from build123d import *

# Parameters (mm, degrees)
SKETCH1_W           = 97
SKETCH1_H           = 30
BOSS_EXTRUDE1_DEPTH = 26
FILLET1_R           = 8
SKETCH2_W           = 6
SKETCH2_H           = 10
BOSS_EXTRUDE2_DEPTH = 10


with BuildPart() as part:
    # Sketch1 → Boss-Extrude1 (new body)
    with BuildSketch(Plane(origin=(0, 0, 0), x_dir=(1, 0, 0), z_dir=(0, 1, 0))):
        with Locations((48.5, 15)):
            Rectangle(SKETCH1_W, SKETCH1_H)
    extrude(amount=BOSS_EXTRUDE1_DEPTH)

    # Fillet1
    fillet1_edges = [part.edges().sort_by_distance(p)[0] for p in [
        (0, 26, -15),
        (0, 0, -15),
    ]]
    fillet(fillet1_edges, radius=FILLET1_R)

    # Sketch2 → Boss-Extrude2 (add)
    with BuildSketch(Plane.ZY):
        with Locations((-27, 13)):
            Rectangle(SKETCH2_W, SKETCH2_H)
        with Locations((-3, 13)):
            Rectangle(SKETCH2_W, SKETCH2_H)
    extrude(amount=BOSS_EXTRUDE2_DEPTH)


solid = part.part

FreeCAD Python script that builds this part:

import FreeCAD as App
import Part
import Sketcher
Q = App.Units.Quantity


def edges_at(feature, points):
    """Names of the edges that pass closest to the given points."""
    edges = feature.Shape.Edges
    near = lambda p: min(range(len(edges)), key=lambda i: edges[i].distToShape(Part.Vertex(*p))[0])
    return sorted({f"Edge{near(p) + 1}" for p in points})

doc = App.newDocument("Part")
body = doc.addObject("PartDesign::Body", "Body")

# Sketch on XZ plane
sketch1 = body.newObject("Sketcher::SketchObject", "Sketch")
sketch1.AttachmentSupport = (doc.getObject("XZ_Plane"), [""])
sketch1.MapMode = "FlatFace"
sketch1.addGeometry(Part.LineSegment(App.Vector(0, -30, 0), App.Vector(0, 0, 0)), False)
sketch1.addGeometry(Part.LineSegment(App.Vector(0, 0, 0), App.Vector(97, 0, 0)), False)
sketch1.addGeometry(Part.LineSegment(App.Vector(97, 0, 0), App.Vector(97, -30, 0)), False)
sketch1.addGeometry(Part.LineSegment(App.Vector(97, -30, 0), App.Vector(0, -30, 0)), False)
sketch1.addConstraint(Sketcher.Constraint("Coincident", 0, 2, 1, 1))
sketch1.addConstraint(Sketcher.Constraint("Coincident", 1, 2, 2, 1))
sketch1.addConstraint(Sketcher.Constraint("Coincident", 2, 2, 3, 1))
sketch1.addConstraint(Sketcher.Constraint("Coincident", 3, 2, 0, 1))
sketch1.addConstraint(Sketcher.Constraint("Vertical", 0))
sketch1.addConstraint(Sketcher.Constraint("Horizontal", 1))
sketch1.addConstraint(Sketcher.Constraint("Vertical", 2))
sketch1.addConstraint(Sketcher.Constraint("Horizontal", 3))
sketch1.addConstraint(Sketcher.Constraint("Coincident", 0, 2, -1, 1))
sketch1.addConstraint(Sketcher.Constraint("DistanceX", 1, 1, 1, 2, Q("97 mm")))
sketch1.addConstraint(Sketcher.Constraint("DistanceY", 0, 1, 0, 2, Q("30 mm")))
pad1 = body.newObject("PartDesign::Pad", "Pad")
pad1.Profile = sketch1
pad1.Length = 26
pad1.Reversed = True
doc.recompute()

fillet = body.newObject("PartDesign::Fillet", "Fillet")
fillet.Base = (pad1, edges_at(pad1, [(0, 26, -15), (0, 0, -15)]))
fillet.Radius = 8

# Sketch on YZ plane
sketch2 = body.newObject("Sketcher::SketchObject", "Sketch001")
sketch2.AttachmentSupport = (doc.getObject("YZ_Plane"), [""])
sketch2.MapMode = "FlatFace"
sketch2.addGeometry(Part.LineSegment(App.Vector(18, -30, 0), App.Vector(8, -30, 0)), False)
sketch2.addGeometry(Part.LineSegment(App.Vector(8, -30, 0), App.Vector(8, -24, 0)), False)
sketch2.addGeometry(Part.LineSegment(App.Vector(8, -24, 0), App.Vector(18, -24, 0)), False)
sketch2.addGeometry(Part.LineSegment(App.Vector(18, -24, 0), App.Vector(18, -30, 0)), False)
sketch2.addGeometry(Part.LineSegment(App.Vector(18, -6, 0), App.Vector(8, -6, 0)), False)
sketch2.addGeometry(Part.LineSegment(App.Vector(8, -6, 0), App.Vector(8, 0, 0)), False)
sketch2.addGeometry(Part.LineSegment(App.Vector(8, 0, 0), App.Vector(18, 0, 0)), False)
sketch2.addGeometry(Part.LineSegment(App.Vector(18, 0, 0), App.Vector(18, -6, 0)), False)
sketch2.addConstraint(Sketcher.Constraint("Coincident", 0, 2, 1, 1))
sketch2.addConstraint(Sketcher.Constraint("Coincident", 1, 2, 2, 1))
sketch2.addConstraint(Sketcher.Constraint("Coincident", 2, 2, 3, 1))
sketch2.addConstraint(Sketcher.Constraint("Coincident", 3, 2, 0, 1))
sketch2.addConstraint(Sketcher.Constraint("Coincident", 4, 2, 5, 1))
sketch2.addConstraint(Sketcher.Constraint("Coincident", 5, 2, 6, 1))
sketch2.addConstraint(Sketcher.Constraint("Coincident", 6, 2, 7, 1))
sketch2.addConstraint(Sketcher.Constraint("Coincident", 7, 2, 4, 1))
sketch2.addConstraint(Sketcher.Constraint("Horizontal", 0))
sketch2.addConstraint(Sketcher.Constraint("Vertical", 1))
sketch2.addConstraint(Sketcher.Constraint("Horizontal", 2))
sketch2.addConstraint(Sketcher.Constraint("Vertical", 3))
sketch2.addConstraint(Sketcher.Constraint("Horizontal", 4))
sketch2.addConstraint(Sketcher.Constraint("Vertical", 5))
sketch2.addConstraint(Sketcher.Constraint("Horizontal", 6))
sketch2.addConstraint(Sketcher.Constraint("Vertical", 7))
sketch2.addConstraint(Sketcher.Constraint("PointOnObject", 5, 2, -1))
sketch2.addConstraint(Sketcher.Constraint("Vertical", 1, 2, 4, 2))
sketch2.addConstraint(Sketcher.Constraint("Vertical", 3, 2, 6, 2))
sketch2.addConstraint(Sketcher.Constraint("Equal", 3, 5))
sketch2.addConstraint(Sketcher.Constraint("DistanceX", 0, 2, 0, 1, Q("10 mm")))
sketch2.addConstraint(Sketcher.Constraint("DistanceY", 1, 1, 1, 2, Q("6 mm")))
sketch2.addConstraint(Sketcher.Constraint("DistanceX", -1, 1, 0, 2, Q("8 mm")))
sketch2.addConstraint(Sketcher.Constraint("DistanceY", 0, 2, -1, 1, Q("30 mm")))
pad2 = body.newObject("PartDesign::Pad", "Pad001")
pad2.Profile = sketch2
pad2.Length = 10
pad2.Reversed = True

doc.recompute()
